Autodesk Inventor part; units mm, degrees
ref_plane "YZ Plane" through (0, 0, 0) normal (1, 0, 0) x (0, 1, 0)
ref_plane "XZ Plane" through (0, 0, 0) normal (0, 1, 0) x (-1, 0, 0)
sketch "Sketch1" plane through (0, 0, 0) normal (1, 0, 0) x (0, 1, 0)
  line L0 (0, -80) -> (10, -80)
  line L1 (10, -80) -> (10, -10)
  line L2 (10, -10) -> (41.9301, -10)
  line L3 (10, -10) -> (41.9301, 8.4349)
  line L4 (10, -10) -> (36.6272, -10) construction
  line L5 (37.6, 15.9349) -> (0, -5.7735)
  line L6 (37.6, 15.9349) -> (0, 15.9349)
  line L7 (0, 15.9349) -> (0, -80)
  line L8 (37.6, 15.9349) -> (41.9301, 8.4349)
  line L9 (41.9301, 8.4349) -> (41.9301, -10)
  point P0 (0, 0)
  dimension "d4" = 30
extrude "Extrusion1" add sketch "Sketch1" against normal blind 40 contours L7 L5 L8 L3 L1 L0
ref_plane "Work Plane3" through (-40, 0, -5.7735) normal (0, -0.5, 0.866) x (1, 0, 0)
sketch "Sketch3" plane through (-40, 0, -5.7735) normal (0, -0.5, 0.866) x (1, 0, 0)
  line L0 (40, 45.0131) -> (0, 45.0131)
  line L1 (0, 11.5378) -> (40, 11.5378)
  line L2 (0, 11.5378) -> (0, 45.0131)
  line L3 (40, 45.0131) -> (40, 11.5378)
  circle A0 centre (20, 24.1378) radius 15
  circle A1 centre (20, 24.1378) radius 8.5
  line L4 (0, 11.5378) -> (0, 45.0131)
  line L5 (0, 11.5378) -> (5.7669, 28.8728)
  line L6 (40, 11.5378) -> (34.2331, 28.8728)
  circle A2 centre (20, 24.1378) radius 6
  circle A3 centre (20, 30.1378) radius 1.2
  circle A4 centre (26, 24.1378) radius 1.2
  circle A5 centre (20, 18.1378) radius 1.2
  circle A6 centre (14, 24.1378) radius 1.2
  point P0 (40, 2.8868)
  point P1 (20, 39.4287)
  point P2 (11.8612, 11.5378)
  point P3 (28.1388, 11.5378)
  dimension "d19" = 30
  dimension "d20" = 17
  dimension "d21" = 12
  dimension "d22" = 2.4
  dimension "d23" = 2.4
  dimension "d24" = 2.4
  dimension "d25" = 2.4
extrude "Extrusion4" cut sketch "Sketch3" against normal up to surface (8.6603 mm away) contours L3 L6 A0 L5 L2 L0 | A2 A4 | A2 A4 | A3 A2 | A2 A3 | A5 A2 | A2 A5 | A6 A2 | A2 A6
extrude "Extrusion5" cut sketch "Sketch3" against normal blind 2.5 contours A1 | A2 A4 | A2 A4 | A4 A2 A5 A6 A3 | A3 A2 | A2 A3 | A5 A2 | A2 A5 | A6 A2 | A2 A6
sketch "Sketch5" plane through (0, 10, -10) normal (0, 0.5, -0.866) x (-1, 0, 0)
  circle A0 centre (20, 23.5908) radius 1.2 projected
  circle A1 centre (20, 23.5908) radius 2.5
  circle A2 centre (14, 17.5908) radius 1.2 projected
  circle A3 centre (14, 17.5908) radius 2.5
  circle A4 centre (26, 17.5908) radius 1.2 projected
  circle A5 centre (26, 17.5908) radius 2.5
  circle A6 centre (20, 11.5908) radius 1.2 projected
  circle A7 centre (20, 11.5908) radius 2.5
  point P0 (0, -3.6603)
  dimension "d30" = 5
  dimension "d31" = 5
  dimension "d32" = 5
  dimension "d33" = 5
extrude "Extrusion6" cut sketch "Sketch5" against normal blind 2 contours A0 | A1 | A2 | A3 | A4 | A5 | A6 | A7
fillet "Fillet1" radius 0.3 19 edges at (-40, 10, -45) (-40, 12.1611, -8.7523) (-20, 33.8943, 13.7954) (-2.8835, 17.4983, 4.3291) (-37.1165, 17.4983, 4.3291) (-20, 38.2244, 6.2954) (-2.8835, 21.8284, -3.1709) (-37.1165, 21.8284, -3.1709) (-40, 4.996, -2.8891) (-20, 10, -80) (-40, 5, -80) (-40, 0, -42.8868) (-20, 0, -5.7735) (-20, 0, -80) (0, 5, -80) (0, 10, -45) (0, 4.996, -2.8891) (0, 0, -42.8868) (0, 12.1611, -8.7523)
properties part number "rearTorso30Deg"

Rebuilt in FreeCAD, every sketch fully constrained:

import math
import FreeCAD as App
import Part
import Sketcher
Q = App.Units.Quantity


def edges_at(feature, points):
    """Names of the edges that pass closest to the given points."""
    edges = feature.Shape.Edges
    near = lambda p: min(range(len(edges)), key=lambda i: edges[i].distToShape(Part.Vertex(*p))[0])
    return sorted({f"Edge{near(p) + 1}" for p in points})


def add_polygon(sketch, points):
    """Adds a closed chain of lines whose ends are joined by coincident constraints."""
    first, n = sketch.GeometryCount, len(points)
    for a, b in zip(points, points[1:] + points[:1]):
        sketch.addGeometry(Part.LineSegment(App.Vector(*a, 0), App.Vector(*b, 0)), False)
    for i in range(n):
        sketch.addConstraint(Sketcher.Constraint("Coincident", first + i, 2, first + (i + 1) % n, 1))

doc = App.newDocument("Part")
body = doc.addObject("PartDesign::Body", "Body")

sketch1 = body.newObject("Sketcher::SketchObject", "Sketch")
sketch1.AttachmentSupport = (doc.getObject("YZ_Plane"), [""])
sketch1.MapMode = "FlatFace"
add_polygon(sketch1, [(0, -6), (0, -80), (10, -80), (10, -10), (42, 8), (38, 16)])
sketch1.addConstraint([
    Sketcher.Constraint("Vertical", 0),
    Sketcher.Constraint("Horizontal", 1),
    Sketcher.Constraint("Vertical", 2),
    Sketcher.Constraint("PointOnObject", 0, 2, -2),
    Sketcher.Constraint("Perpendicular", 3, 4),
    Sketcher.Constraint("Perpendicular", 4, 5),
    Sketcher.Constraint("Angle", 3, Q("30 deg")),
    Sketcher.Constraint("DistanceX", 1, 1, 1, 2, 10.0),
    Sketcher.Constraint("DistanceY", 2, 1, 2, 2, 70.0),
    Sketcher.Constraint("DistanceY", 0, 2, -1, 1, 80.0),
    Sketcher.Constraint("DistanceX", -1, 1, 4, 2, 37.6),
    Sketcher.Constraint("DistanceY", 3, 2, 4, 2, 7.5),
])
pad1 = body.newObject("PartDesign::Pad", "Pad")
pad1.Profile = sketch1
pad1.Length = 40
pad1.Reversed = True

sketch2 = body.newObject("Sketcher::SketchObject", "Sketch001")
sketch2.Placement = App.Placement(App.Vector(-40, 0, -5.7735), App.Rotation(App.Vector(1, 0, 0), App.Vector(0, 0.866025404, 0.5), App.Vector(0, -0.5, 0.866025404), "ZXY"))
sketch2.addGeometry([
    Part.LineSegment(App.Vector(40, 11.5, 0), App.Vector(40, 45, 0)),
    Part.LineSegment(App.Vector(40, 45, 0), App.Vector(0, 45, 0)),
    Part.LineSegment(App.Vector(0, 45, 0), App.Vector(0, 11.5, 0)),
    Part.LineSegment(App.Vector(0, 11.5, 0), App.Vector(5.8, 28.9, 0)),
    Part.ArcOfCircle(Part.Circle(App.Vector(20, 24.1, 0), App.Vector(0, 0, 1), 15), math.radians(18), math.radians(162)),
    Part.LineSegment(App.Vector(34.2, 28.9, 0), App.Vector(40, 11.5, 0)),
    Part.Circle(App.Vector(26, 24.1, 0), App.Vector(0, 0, 1), 1.2),
    Part.Circle(App.Vector(20, 30.1, 0), App.Vector(0, 0, 1), 1.2),
    Part.Circle(App.Vector(20, 18.1, 0), App.Vector(0, 0, 1), 1.2),
    Part.Circle(App.Vector(14, 24.1, 0), App.Vector(0, 0, 1), 1.2),
], False)
sketch2.addConstraint([
    Sketcher.Constraint("Coincident", 0, 2, 1, 1),
    Sketcher.Constraint("Coincident", 1, 2, 2, 1),
    Sketcher.Constraint("Coincident", 2, 2, 3, 1),
    Sketcher.Constraint("Tangent", 3, 2, 4, 2),
    Sketcher.Constraint("Tangent", 4, 1, 5, 1),
    Sketcher.Constraint("Coincident", 5, 2, 0, 1),
    Sketcher.Constraint("Vertical", 0),
    Sketcher.Constraint("Horizontal", 1),
    Sketcher.Constraint("Vertical", 2),
    Sketcher.Constraint("Equal", 6, 7),
    Sketcher.Constraint("Equal", 7, 8),
    Sketcher.Constraint("Equal", 8, 9),
    Sketcher.Constraint("PointOnObject", 1, 2, -2),
    Sketcher.Constraint("Horizontal", 4, 3, 6, 3),
    Sketcher.Constraint("Horizontal", 6, 3, 9, 3),
    Sketcher.Constraint("Horizontal", 3, 2, 4, 1),
    Sketcher.Constraint("Horizontal", 2, 2, 5, 2),
    Sketcher.Constraint("Vertical", 4, 3, 7, 3),
    Sketcher.Constraint("Vertical", 7, 3, 8, 3),
    Sketcher.Constraint("Radius", 4, 15.0),
    Sketcher.Constraint("Diameter", 6, 2.4),
    Sketcher.Constraint("DistanceY", 8, 3, 7, 3, 12.0),
    Sketcher.Constraint("DistanceX", 9, 3, 6, 3, 12.0),
    Sketcher.Constraint("DistanceX", 1, 2, 1, 1, 40.0),
    Sketcher.Constraint("DistanceX", -1, 1, 6, 3, 26.0),
    Sketcher.Constraint("Angle", 3, Q("71.599 deg")),
    Sketcher.Constraint("DistanceY", 4, 3, 7, 3, 6.0),
    Sketcher.Constraint("DistanceY", 0, 1, 0, 2, 33.4753),
    Sketcher.Constraint("DistanceY", -1, 1, 0, 2, 45.013),
])
pocket1 = body.newObject("PartDesign::Pocket", "Pocket")
pocket1.Profile = sketch2
pocket1.Length = 8.6603

sketch3 = body.newObject("Sketcher::SketchObject", "Sketch002")
sketch3.Placement = App.Placement(App.Vector(-40, 0, -5.7735), App.Rotation(App.Vector(1, 0, 0), App.Vector(0, 0.866025404, 0.5), App.Vector(0, -0.5, 0.866025404), "ZXY"))
sketch3.addGeometry(Part.Circle(App.Vector(20, 24, 0), App.Vector(0, 0, 1), 8), False)
sketch3.addConstraint([
    Sketcher.Constraint("Diameter", 0, 17.0),
    Sketcher.Constraint("DistanceX", -1, 1, 0, 3, 20.0),
    Sketcher.Constraint("DistanceY", -1, 1, 0, 3, 24.1378),
])
pocket2 = body.newObject("PartDesign::Pocket", "Pocket001")
pocket2.Profile = sketch3
pocket2.Length = 2.5

sketch4 = body.newObject("Sketcher::SketchObject", "Sketch003")
sketch4.Placement = App.Placement(App.Vector(0, 10, -10), App.Rotation(App.Vector(-1, 0, 0), App.Vector(0, 0.866025404, 0.5), App.Vector(0, 0.5, -0.866025404), "ZXY"))
sketch4.addGeometry([
    Part.Circle(App.Vector(20, 23.6, 0), App.Vector(0, 0, 1), 2.5),
    Part.Circle(App.Vector(14, 17.6, 0), App.Vector(0, 0, 1), 2.5),
    Part.Circle(App.Vector(26, 17.6, 0), App.Vector(0, 0, 1), 2.5),
    Part.Circle(App.Vector(20, 11.6, 0), App.Vector(0, 0, 1), 2.5),
], False)
sketch4.addConstraint([
    Sketcher.Constraint("Equal", 0, 1),
    Sketcher.Constraint("Equal", 1, 2),
    Sketcher.Constraint("Equal", 2, 3),
    Sketcher.Constraint("Horizontal", 1, 3, 2, 3),
    Sketcher.Constraint("Vertical", 0, 3, 3, 3),
    Sketcher.Constraint("Diameter", 0, 5.0),
    Sketcher.Constraint("DistanceX", -1, 1, 0, 3, 20.0),
    Sketcher.Constraint("DistanceX", -1, 1, 1, 3, 14.0),
    Sketcher.Constraint("DistanceX", -1, 1, 2, 3, 26.0),
    Sketcher.Constraint("DistanceY", 1, 3, 0, 3, 6.0),
    Sketcher.Constraint("DistanceY", 3, 3, 1, 3, 6.0),
    Sketcher.Constraint("DistanceY", -1, 1, 0, 3, 23.5908),
])
pocket3 = body.newObject("PartDesign::Pocket", "Pocket002")
pocket3.Profile = sketch4
pocket3.Length = 2
doc.recompute()

fillet = body.newObject("PartDesign::Fillet", "Fillet")
fillet.Base = (pocket3, edges_at(pocket3, [
    (-40, 10, -45),
    (-40, 12.161, -8.752),
    (-20, 33.894, 13.795),
    (-2.884, 17.498, 4.329),
    (-37.117, 17.498, 4.329),
    (-20, 38.224, 6.295),
    (-2.884, 21.828, -3.171),
    (-37.117, 21.828, -3.171),
    (-40, 4.996, -2.889),
    (-20, 10, -80),
    (-40, 5, -80),
    (-40, 0, -42.887),
    (-20, 0, -5.774),
    (-20, 0, -80),
    (0, 5, -80),
    (0, 10, -45),
    (0, 4.996, -2.889),
    (0, 0, -42.887),
    (0, 12.161, -8.752),
]))
fillet.Radius = 0.3

doc.recompute()
